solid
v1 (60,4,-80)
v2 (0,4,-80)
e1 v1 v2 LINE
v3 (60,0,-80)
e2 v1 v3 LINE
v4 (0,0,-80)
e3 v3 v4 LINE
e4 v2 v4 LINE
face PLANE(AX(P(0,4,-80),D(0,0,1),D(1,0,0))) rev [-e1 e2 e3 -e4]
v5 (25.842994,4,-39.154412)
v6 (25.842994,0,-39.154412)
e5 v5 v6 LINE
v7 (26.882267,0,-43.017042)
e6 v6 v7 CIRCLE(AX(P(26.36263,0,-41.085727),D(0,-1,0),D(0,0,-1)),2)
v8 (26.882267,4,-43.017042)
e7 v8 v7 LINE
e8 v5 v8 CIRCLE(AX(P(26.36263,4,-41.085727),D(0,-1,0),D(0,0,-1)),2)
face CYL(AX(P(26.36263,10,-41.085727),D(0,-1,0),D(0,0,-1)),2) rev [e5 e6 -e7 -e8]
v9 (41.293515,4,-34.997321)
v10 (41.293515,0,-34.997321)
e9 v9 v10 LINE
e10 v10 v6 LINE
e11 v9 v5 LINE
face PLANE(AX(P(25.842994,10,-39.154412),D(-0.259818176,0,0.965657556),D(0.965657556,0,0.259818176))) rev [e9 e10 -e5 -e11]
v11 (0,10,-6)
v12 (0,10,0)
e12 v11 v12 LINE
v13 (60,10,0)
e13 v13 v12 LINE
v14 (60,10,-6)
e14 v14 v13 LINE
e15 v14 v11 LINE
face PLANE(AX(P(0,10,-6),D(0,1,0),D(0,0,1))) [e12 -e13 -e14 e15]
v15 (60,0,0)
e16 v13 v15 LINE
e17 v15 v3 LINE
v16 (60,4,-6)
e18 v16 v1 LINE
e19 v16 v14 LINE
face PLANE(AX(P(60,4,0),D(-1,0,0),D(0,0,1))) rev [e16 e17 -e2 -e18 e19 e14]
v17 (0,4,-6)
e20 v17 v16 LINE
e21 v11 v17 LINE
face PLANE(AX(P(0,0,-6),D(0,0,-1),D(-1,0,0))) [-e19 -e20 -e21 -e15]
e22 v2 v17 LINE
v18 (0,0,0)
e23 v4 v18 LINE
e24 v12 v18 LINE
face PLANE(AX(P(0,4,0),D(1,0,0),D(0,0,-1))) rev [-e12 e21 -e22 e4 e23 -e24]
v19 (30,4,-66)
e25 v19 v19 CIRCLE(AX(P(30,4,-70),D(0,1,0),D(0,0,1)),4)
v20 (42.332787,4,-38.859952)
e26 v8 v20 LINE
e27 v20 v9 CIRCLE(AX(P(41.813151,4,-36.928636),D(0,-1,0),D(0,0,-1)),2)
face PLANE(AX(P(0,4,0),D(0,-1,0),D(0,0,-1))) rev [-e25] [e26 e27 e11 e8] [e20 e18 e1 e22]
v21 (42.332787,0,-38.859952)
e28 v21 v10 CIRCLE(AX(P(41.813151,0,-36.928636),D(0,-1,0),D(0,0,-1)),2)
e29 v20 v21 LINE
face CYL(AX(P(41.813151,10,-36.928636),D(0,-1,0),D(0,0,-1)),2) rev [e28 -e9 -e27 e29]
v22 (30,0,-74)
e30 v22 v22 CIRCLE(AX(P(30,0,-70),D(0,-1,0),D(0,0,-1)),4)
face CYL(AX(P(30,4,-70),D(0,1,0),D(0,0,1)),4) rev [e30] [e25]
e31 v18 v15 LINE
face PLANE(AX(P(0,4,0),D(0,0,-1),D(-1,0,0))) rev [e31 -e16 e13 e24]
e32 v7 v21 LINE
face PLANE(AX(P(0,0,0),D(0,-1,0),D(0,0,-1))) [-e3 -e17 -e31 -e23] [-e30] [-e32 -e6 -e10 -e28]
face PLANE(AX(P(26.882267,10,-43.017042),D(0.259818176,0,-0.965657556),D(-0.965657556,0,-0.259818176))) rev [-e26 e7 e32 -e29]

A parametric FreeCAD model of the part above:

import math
import FreeCAD as App
import Part
import Sketcher


def add_polygon(sketch, points):
    """Adds a closed chain of lines whose ends are joined by coincident constraints."""
    first, n = sketch.GeometryCount, len(points)
    for a, b in zip(points, points[1:] + points[:1]):
        sketch.addGeometry(Part.LineSegment(App.Vector(*a, 0), App.Vector(*b, 0)), False)
    for i in range(n):
        sketch.addConstraint(Sketcher.Constraint("Coincident", first + i, 2, first + (i + 1) % n, 1))

doc = App.newDocument("Part")
body = doc.addObject("PartDesign::Body", "Body")

sketch1 = body.newObject("Sketcher::SketchObject", "Sketch")
sketch1.AttachmentSupport = (doc.getObject("XZ_Plane"), [""])
sketch1.MapMode = "FlatFace"
add_polygon(sketch1, [(0, -80), (0, 0), (60, 0), (60, -80)])
sketch1.addConstraint([
    Sketcher.Constraint("Vertical", 0),
    Sketcher.Constraint("Horizontal", 1),
    Sketcher.Constraint("Vertical", 2),
    Sketcher.Constraint("Horizontal", 3),
    Sketcher.Constraint("Coincident", 0, 2, -1, 1),
    Sketcher.Constraint("DistanceX", 1, 1, 1, 2, 60.0),
    Sketcher.Constraint("DistanceY", 0, 1, 0, 2, 80.0),
])
pad1 = body.newObject("PartDesign::Pad", "Pad")
pad1.Profile = sketch1
pad1.Length = 4
pad1.Reversed = True

sketch2 = body.newObject("Sketcher::SketchObject", "Sketch001")
sketch2.AttachmentSupport = (doc.getObject("XY_Plane"), [""])
sketch2.MapMode = "FlatFace"
add_polygon(sketch2, [(0, 10), (0, 0), (60, 0), (60, 10)])
sketch2.addConstraint([
    Sketcher.Constraint("Vertical", 0),
    Sketcher.Constraint("Horizontal", 1),
    Sketcher.Constraint("Vertical", 2),
    Sketcher.Constraint("Horizontal", 3),
    Sketcher.Constraint("Coincident", 0, 2, -1, 1),
    Sketcher.Constraint("DistanceX", 1, 1, 1, 2, 60.0),
    Sketcher.Constraint("DistanceY", 0, 2, 0, 1, 10.0),
])
pad2 = body.newObject("PartDesign::Pad", "Pad001")
pad2.Profile = sketch2
pad2.Length = 6
pad2.Reversed = True

sketch3 = body.newObject("Sketcher::SketchObject", "Sketch002")
sketch3.AttachmentSupport = (doc.getObject("XZ_Plane"), [""])
sketch3.MapMode = "FlatFace"
sketch3.AttachmentOffset = App.Placement(App.Vector(0, 0, -4), App.Rotation())
sketch3.addGeometry(Part.Circle(App.Vector(30, -70, 0), App.Vector(0, 0, 1), 4), False)
sketch3.addConstraint([
    Sketcher.Constraint("Diameter", 0, 8.0),
    Sketcher.Constraint("DistanceX", -1, 1, 0, 3, 30.0),
    Sketcher.Constraint("DistanceY", 0, 3, -1, 1, 70.0),
])
doc.recompute()
hole = body.newObject("PartDesign::Hole", "Hole")
hole.Profile = sketch3
hole.ThreadType = "None"
hole.Diameter = 8
hole.DepthType = "Dimension"
hole.Depth = 6
hole.DrillPoint = "Flat"
hole.Reversed = True

sketch4 = body.newObject("Sketcher::SketchObject", "Sketch003")
sketch4.AttachmentSupport = (doc.getObject("XZ_Plane"), [""])
sketch4.MapMode = "FlatFace"
sketch4.addGeometry([
    Part.LineSegment(App.Vector(41.3, -35, 0), App.Vector(25.8, -39.2, 0)),
    Part.ArcOfCircle(Part.Circle(App.Vector(26.4, -41.1, 0), App.Vector(0, 0, 1), 2), math.radians(105), math.radians(285)),
    Part.LineSegment(App.Vector(26.9, -43, 0), App.Vector(42.3, -38.9, 0)),
    Part.ArcOfCircle(Part.Circle(App.Vector(41.8, -36.9, 0), App.Vector(0, 0, 1), 2), math.radians(-75), math.radians(105)),
], False)
sketch4.addConstraint([
    Sketcher.Constraint("Tangent", 0, 2, 1, 1),
    Sketcher.Constraint("Tangent", 1, 2, 2, 1),
    Sketcher.Constraint("Tangent", 2, 2, 3, 1),
    Sketcher.Constraint("Tangent", 3, 2, 0, 1),
    Sketcher.Constraint("Equal", 1, 3),
    Sketcher.Constraint("Radius", 1, 2.0),
    Sketcher.Constraint("Distance", 0, 16.0),
    Sketcher.Constraint("DistanceX", -1, 1, 1, 3, 26.36263),
    Sketcher.Constraint("DistanceX", -1, 1, 3, 3, 41.813151),
    Sketcher.Constraint("DistanceY", 2, 2, -1, 1, 38.859952),
])
pocket1 = body.newObject("PartDesign::Pocket", "Pocket")
pocket1.Profile = sketch4
pocket1.Type = "ThroughAll"

doc.recompute()
